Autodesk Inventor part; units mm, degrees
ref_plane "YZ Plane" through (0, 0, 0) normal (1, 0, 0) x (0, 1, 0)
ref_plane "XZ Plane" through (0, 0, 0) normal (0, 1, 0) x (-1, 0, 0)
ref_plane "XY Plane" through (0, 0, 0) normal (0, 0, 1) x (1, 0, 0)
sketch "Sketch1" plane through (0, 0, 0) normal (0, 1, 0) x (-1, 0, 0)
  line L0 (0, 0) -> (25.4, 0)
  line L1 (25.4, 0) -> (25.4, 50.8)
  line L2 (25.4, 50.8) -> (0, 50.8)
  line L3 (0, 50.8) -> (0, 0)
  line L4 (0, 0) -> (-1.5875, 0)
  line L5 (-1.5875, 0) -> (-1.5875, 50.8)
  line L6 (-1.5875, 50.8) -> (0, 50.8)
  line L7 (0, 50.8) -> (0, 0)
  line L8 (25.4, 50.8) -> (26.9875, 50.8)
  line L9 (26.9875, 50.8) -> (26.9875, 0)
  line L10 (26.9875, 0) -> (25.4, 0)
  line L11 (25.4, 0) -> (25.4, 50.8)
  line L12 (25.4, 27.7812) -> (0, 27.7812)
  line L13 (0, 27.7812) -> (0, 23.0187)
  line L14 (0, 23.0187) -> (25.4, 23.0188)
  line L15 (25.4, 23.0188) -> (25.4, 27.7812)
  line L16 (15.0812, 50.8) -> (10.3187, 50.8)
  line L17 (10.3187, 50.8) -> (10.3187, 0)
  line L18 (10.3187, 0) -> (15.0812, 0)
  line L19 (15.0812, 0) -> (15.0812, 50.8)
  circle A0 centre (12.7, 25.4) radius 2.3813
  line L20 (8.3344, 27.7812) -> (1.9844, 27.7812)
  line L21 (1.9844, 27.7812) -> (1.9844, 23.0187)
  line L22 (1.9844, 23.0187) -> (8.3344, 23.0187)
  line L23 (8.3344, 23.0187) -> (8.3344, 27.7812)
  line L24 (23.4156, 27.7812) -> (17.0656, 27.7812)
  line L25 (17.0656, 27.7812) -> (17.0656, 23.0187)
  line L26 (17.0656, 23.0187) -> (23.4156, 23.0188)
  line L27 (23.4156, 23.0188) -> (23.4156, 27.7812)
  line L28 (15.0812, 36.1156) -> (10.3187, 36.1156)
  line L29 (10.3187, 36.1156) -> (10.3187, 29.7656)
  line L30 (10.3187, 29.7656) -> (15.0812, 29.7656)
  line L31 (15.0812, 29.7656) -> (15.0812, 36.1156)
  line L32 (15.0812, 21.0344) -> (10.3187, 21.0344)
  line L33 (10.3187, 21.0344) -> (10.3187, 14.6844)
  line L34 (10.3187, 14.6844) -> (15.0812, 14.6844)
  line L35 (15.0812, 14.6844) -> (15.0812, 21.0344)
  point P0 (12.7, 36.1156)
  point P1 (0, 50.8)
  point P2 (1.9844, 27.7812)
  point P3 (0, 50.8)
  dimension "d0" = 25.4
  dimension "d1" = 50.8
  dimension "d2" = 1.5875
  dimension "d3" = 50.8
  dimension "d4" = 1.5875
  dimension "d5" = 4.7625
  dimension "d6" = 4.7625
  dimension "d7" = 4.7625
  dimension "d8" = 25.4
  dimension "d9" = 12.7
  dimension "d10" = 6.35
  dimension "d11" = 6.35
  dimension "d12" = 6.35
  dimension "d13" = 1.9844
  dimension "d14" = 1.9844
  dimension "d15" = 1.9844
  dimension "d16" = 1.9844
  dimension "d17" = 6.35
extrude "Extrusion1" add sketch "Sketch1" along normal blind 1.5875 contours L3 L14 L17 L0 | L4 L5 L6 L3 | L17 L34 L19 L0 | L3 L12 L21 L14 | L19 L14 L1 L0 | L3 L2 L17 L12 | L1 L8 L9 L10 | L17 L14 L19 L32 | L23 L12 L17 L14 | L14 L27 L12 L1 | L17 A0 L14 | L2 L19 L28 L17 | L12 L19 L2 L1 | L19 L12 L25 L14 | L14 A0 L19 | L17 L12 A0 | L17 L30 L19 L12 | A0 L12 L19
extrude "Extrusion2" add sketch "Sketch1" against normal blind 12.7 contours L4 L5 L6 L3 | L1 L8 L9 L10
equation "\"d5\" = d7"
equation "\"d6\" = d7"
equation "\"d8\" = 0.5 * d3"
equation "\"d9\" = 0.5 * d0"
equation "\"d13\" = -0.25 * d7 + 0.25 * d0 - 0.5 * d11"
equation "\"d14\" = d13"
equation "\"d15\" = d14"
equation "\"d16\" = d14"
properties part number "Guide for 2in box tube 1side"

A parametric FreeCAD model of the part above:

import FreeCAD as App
import Part
import Sketcher
Q = App.Units.Quantity

doc = App.newDocument("Part")
body = doc.addObject("PartDesign::Body", "Body")

# Sketch on XZ plane
sketch1 = body.newObject("Sketcher::SketchObject", "Sketch")
sketch1.AttachmentSupport = (doc.getObject("XZ_Plane"), [""])
sketch1.MapMode = "FlatFace"
sketch1.addGeometry([
    Part.LineSegment(App.Vector(-27, 0, 0), App.Vector(-27, 50.8, 0)),  # 0
    Part.LineSegment(App.Vector(-27, 50.8, 0), App.Vector(1.6, 50.8, 0)),  # 1
    Part.LineSegment(App.Vector(1.6, 50.8, 0), App.Vector(1.6, 0, 0)),  # 2
    Part.LineSegment(App.Vector(1.6, 0, 0), App.Vector(-27, 0, 0)),  # 3
    Part.LineSegment(App.Vector(-8.3, 23, 0), App.Vector(-2, 23, 0)),  # 4
    Part.LineSegment(App.Vector(-2, 23, 0), App.Vector(-2, 27.8, 0)),  # 5
    Part.LineSegment(App.Vector(-2, 27.8, 0), App.Vector(-8.3, 27.8, 0)),  # 6
    Part.LineSegment(App.Vector(-8.3, 27.8, 0), App.Vector(-8.3, 23, 0)),  # 7
    Part.LineSegment(App.Vector(-10.3, 14.7, 0), App.Vector(-10.3, 21, 0)),  # 8
    Part.LineSegment(App.Vector(-10.3, 21, 0), App.Vector(-15.1, 21, 0)),  # 9
    Part.LineSegment(App.Vector(-15.1, 21, 0), App.Vector(-15.1, 14.7, 0)),  # 10
    Part.LineSegment(App.Vector(-15.1, 14.7, 0), App.Vector(-10.3, 14.7, 0)),  # 11
    Part.LineSegment(App.Vector(-10.3, 29.8, 0), App.Vector(-10.3, 36.1, 0)),  # 12
    Part.LineSegment(App.Vector(-10.3, 36.1, 0), App.Vector(-15.1, 36.1, 0)),  # 13
    Part.LineSegment(App.Vector(-15.1, 36.1, 0), App.Vector(-15.1, 29.8, 0)),  # 14
    Part.LineSegment(App.Vector(-15.1, 29.8, 0), App.Vector(-10.3, 29.8, 0)),  # 15
    Part.Circle(App.Vector(-12.7, 25.4, 0), App.Vector(0, 0, 1), 2.4),  # 16
    Part.LineSegment(App.Vector(-23.4, 23, 0), App.Vector(-17.1, 23, 0)),  # 17
    Part.LineSegment(App.Vector(-17.1, 23, 0), App.Vector(-17.1, 27.8, 0)),  # 18
    Part.LineSegment(App.Vector(-17.1, 27.8, 0), App.Vector(-23.4, 27.8, 0)),  # 19
    Part.LineSegment(App.Vector(-23.4, 27.8, 0), App.Vector(-23.4, 23, 0)),  # 20
], False)
sketch1.addConstraint([
    Sketcher.Constraint("Coincident", 0, 2, 1, 1),
    Sketcher.Constraint("Coincident", 1, 2, 2, 1),
    Sketcher.Constraint("Coincident", 2, 2, 3, 1),
    Sketcher.Constraint("Coincident", 3, 2, 0, 1),
    Sketcher.Constraint("Coincident", 4, 2, 5, 1),
    Sketcher.Constraint("Coincident", 5, 2, 6, 1),
    Sketcher.Constraint("Coincident", 6, 2, 7, 1),
    Sketcher.Constraint("Coincident", 7, 2, 4, 1),
    Sketcher.Constraint("Coincident", 8, 2, 9, 1),
    Sketcher.Constraint("Coincident", 9, 2, 10, 1),
    Sketcher.Constraint("Coincident", 10, 2, 11, 1),
    Sketcher.Constraint("Coincident", 11, 2, 8, 1),
    Sketcher.Constraint("Coincident", 12, 2, 13, 1),
    Sketcher.Constraint("Coincident", 13, 2, 14, 1),
    Sketcher.Constraint("Coincident", 14, 2, 15, 1),
    Sketcher.Constraint("Coincident", 15, 2, 12, 1),
    Sketcher.Constraint("Coincident", 17, 2, 18, 1),
    Sketcher.Constraint("Coincident", 18, 2, 19, 1),
    Sketcher.Constraint("Coincident", 19, 2, 20, 1),
    Sketcher.Constraint("Coincident", 20, 2, 17, 1),
    Sketcher.Constraint("Vertical", 0),
    Sketcher.Constraint("Horizontal", 1),
    Sketcher.Constraint("Vertical", 2),
    Sketcher.Constraint("Horizontal", 3),
    Sketcher.Constraint("Horizontal", 4),
    Sketcher.Constraint("Vertical", 5),
    Sketcher.Constraint("Horizontal", 6),
    Sketcher.Constraint("Vertical", 7),
    Sketcher.Constraint("Vertical", 8),
    Sketcher.Constraint("Horizontal", 9),
    Sketcher.Constraint("Vertical", 10),
    Sketcher.Constraint("Horizontal", 11),
    Sketcher.Constraint("Vertical", 12),
    Sketcher.Constraint("Horizontal", 13),
    Sketcher.Constraint("Vertical", 14),
    Sketcher.Constraint("Horizontal", 15),
    Sketcher.Constraint("Horizontal", 17),
    Sketcher.Constraint("Vertical", 18),
    Sketcher.Constraint("Horizontal", 19),
    Sketcher.Constraint("Vertical", 20),
    Sketcher.Constraint("PointOnObject", 2, 2, -1),
    Sketcher.Constraint("Horizontal", 7, 2, 17, 2),
    Sketcher.Constraint("Horizontal", 6, 2, 18, 2),
    Sketcher.Constraint("Vertical", 11, 2, 12, 2),
    Sketcher.Constraint("Vertical", 10, 2, 13, 2),
    Sketcher.Constraint("Equal", 6, 17),
    Sketcher.Constraint("Equal", 15, 5),
    Sketcher.Constraint("Equal", 19, 8),
    Sketcher.Constraint("Equal", 10, 12),
    Sketcher.Constraint("DistanceY", 0, 1, 0, 2, Q("2 in")),
    Sketcher.Constraint("Diameter", 16, Q("0.1875 in")),
    Sketcher.Constraint("DistanceY", -1, 1, 16, 3, Q("1 in")),
    Sketcher.Constraint("DistanceX", 4, 1, 4, 2, Q("0.25 in")),
    Sketcher.Constraint("DistanceX", 16, 3, -1, 1, Q("0.5 in")),
    Sketcher.Constraint("DistanceX", 9, 2, 9, 1, Q("0.1875 in")),
    Sketcher.Constraint("DistanceX", -1, 1, 1, 2, Q("0.0625 in")),
    Sketcher.Constraint("DistanceX", 4, 2, -1, 1, Q("0.078126 in")),
    Sketcher.Constraint("DistanceX", 8, 2, 7, 2, Q("0.078122 in")),
    Sketcher.Constraint("DistanceY", 8, 2, 7, 2, Q("0.078122 in")),
    Sketcher.Constraint("DistanceY", 6, 2, 14, 2, Q("0.078126 in")),
    Sketcher.Constraint("DistanceX", 17, 2, 9, 2, Q("0.078126 in")),
    Sketcher.Constraint("DistanceX", 1, 1, 1, 2, Q("1.125 in")),
    Sketcher.Constraint("DistanceY", -1, 1, 4, 2, Q("0.906248 in")),
])
pad1 = body.newObject("PartDesign::Pad", "Pad")
pad1.Profile = sketch1
pad1.Length = Q("0.0625 in")
pad1.Reversed = True

# Sketch on XZ plane
sketch2 = body.newObject("Sketcher::SketchObject", "Sketch001")
sketch2.AttachmentSupport = (doc.getObject("XZ_Plane"), [""])
sketch2.MapMode = "FlatFace"
sketch2.addGeometry([
    Part.LineSegment(App.Vector(1.6, 0, 0), App.Vector(0, 0, 0)),  # 0
    Part.LineSegment(App.Vector(0, 0, 0), App.Vector(0, 50.8, 0)),  # 1
    Part.LineSegment(App.Vector(0, 50.8, 0), App.Vector(1.6, 50.8, 0)),  # 2
    Part.LineSegment(App.Vector(1.6, 50.8, 0), App.Vector(1.6, 0, 0)),  # 3
    Part.LineSegment(App.Vector(-25.4, 50.8, 0), App.Vector(-25.4, 0, 0)),  # 4
    Part.LineSegment(App.Vector(-25.4, 0, 0), App.Vector(-27, 0, 0)),  # 5
    Part.LineSegment(App.Vector(-27, 0, 0), App.Vector(-27, 50.8, 0)),  # 6
    Part.LineSegment(App.Vector(-27, 50.8, 0), App.Vector(-25.4, 50.8, 0)),  # 7
], False)
sketch2.addConstraint([
    Sketcher.Constraint("Coincident", 0, 2, 1, 1),
    Sketcher.Constraint("Coincident", 1, 2, 2, 1),
    Sketcher.Constraint("Coincident", 2, 2, 3, 1),
    Sketcher.Constraint("Coincident", 3, 2, 0, 1),
    Sketcher.Constraint("Coincident", 4, 2, 5, 1),
    Sketcher.Constraint("Coincident", 5, 2, 6, 1),
    Sketcher.Constraint("Coincident", 6, 2, 7, 1),
    Sketcher.Constraint("Coincident", 7, 2, 4, 1),
    Sketcher.Constraint("Horizontal", 0),
    Sketcher.Constraint("Vertical", 1),
    Sketcher.Constraint("Horizontal", 2),
    Sketcher.Constraint("Vertical", 3),
    Sketcher.Constraint("Vertical", 4),
    Sketcher.Constraint("Horizontal", 5),
    Sketcher.Constraint("Vertical", 6),
    Sketcher.Constraint("Horizontal", 7),
    Sketcher.Constraint("Coincident", 0, 2, -1, 1),
    Sketcher.Constraint("PointOnObject", 4, 2, -1),
    Sketcher.Constraint("Horizontal", 2, 2, 6, 2),
    Sketcher.Constraint("Equal", 2, 5),
    Sketcher.Constraint("DistanceY", 1, 1, 1, 2, Q("2 in")),
    Sketcher.Constraint("DistanceX", 4, 2, -1, 1, Q("1 in")),
    Sketcher.Constraint("DistanceX", 0, 2, 0, 1, Q("0.0625 in")),
])
pad2 = body.newObject("PartDesign::Pad", "Pad001")
pad2.Profile = sketch2
pad2.Length = Q("0.5 in")

doc.recompute()
